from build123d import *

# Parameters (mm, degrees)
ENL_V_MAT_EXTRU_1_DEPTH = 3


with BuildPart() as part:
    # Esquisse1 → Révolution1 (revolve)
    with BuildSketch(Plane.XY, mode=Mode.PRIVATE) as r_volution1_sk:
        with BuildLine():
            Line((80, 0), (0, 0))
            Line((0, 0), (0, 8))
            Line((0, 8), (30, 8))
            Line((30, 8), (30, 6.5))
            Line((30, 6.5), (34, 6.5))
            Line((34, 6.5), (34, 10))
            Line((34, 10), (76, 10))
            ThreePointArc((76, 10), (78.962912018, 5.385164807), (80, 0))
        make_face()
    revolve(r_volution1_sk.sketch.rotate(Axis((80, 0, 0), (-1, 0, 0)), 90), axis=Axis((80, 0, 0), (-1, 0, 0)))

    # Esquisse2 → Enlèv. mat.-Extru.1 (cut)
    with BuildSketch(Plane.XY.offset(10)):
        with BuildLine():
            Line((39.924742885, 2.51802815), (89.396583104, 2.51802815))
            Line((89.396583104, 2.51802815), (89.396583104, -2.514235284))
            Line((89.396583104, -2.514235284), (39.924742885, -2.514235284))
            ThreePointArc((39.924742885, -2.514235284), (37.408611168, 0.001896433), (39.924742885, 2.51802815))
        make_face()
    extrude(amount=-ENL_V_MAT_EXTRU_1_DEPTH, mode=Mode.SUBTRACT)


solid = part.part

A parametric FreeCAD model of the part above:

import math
import FreeCAD as App
import Part
import Sketcher
Q = App.Units.Quantity

doc = App.newDocument("Part")
body = doc.addObject("PartDesign::Body", "Body")

# Sketch on XY plane
sketch1 = doc.addObject("Sketcher::SketchObject", "Sketch")
body.addObject(sketch1)
sketch1.AttachmentSupport = (doc.XY_Plane, [""])
sketch1.MapMode = "FlatFace"
sketch1.addGeometry([
    Part.LineSegment(App.Vector(0, 0, 0), App.Vector(80, 0, 0)),  # 0
    Part.ArcOfCircle(Part.Circle(App.Vector(65.5, 0, 0), App.Vector(0, 0, 1), 14.5), math.radians(0), math.radians(44)),  # 1
    Part.LineSegment(App.Vector(76, 10, 0), App.Vector(34, 10, 0)),  # 2
    Part.LineSegment(App.Vector(34, 10, 0), App.Vector(34, 6.5, 0)),  # 3
    Part.LineSegment(App.Vector(34, 6.5, 0), App.Vector(30, 6.5, 0)),  # 4
    Part.LineSegment(App.Vector(30, 6.5, 0), App.Vector(30, 8, 0)),  # 5
    Part.LineSegment(App.Vector(30, 8, 0), App.Vector(0, 8, 0)),  # 6
    Part.LineSegment(App.Vector(0, 8, 0), App.Vector(0, 0, 0)),  # 7
], False)
sketch1.addConstraint([
    Sketcher.Constraint("Coincident", 0, 2, 1, 1),
    Sketcher.Constraint("Coincident", 1, 2, 2, 1),
    Sketcher.Constraint("Coincident", 2, 2, 3, 1),
    Sketcher.Constraint("Coincident", 3, 2, 4, 1),
    Sketcher.Constraint("Coincident", 4, 2, 5, 1),
    Sketcher.Constraint("Coincident", 5, 2, 6, 1),
    Sketcher.Constraint("Coincident", 6, 2, 7, 1),
    Sketcher.Constraint("Coincident", 7, 2, 0, 1),
    Sketcher.Constraint("Horizontal", 0),
    Sketcher.Constraint("Horizontal", 2),
    Sketcher.Constraint("Vertical", 3),
    Sketcher.Constraint("Horizontal", 4),
    Sketcher.Constraint("Vertical", 5),
    Sketcher.Constraint("Horizontal", 6),
    Sketcher.Constraint("Vertical", 7),
    Sketcher.Constraint("Coincident", 7, 2, -1, 1),
    Sketcher.Constraint("PointOnObject", 1, 3, -1),
    Sketcher.Constraint("Radius", 1, Q("14.5 mm")),
    Sketcher.Constraint("DistanceX", 0, 1, 0, 2, Q("80 mm")),
    Sketcher.Constraint("DistanceX", 2, 2, 2, 1, Q("42 mm")),
    Sketcher.Constraint("DistanceX", 4, 2, 4, 1, Q("4 mm")),
    Sketcher.Constraint("DistanceX", 6, 2, 6, 1, Q("30 mm")),
    Sketcher.Constraint("DistanceY", 7, 2, 7, 1, Q("8 mm")),
    Sketcher.Constraint("DistanceY", 3, 2, 3, 1, Q("3.5 mm")),
])
revolution = doc.addObject("PartDesign::Revolution", "Revolution")
body.addObject(revolution)
revolution.Profile = sketch1
revolution.ReferenceAxis = (sketch1, ["H_Axis"])
revolution.Angle = 360

# Sketch on XY plane
sketch2 = doc.addObject("Sketcher::SketchObject", "Sketch001")
body.addObject(sketch2)
sketch2.AttachmentSupport = (doc.XY_Plane, [""])
sketch2.MapMode = "FlatFace"
sketch2.AttachmentOffset = App.Placement(App.Vector(0, 0, 10), App.Rotation())
sketch2.addGeometry([
    Part.LineSegment(App.Vector(89.4, 2.5, 0), App.Vector(39.9, 2.5, 0)),
    Part.ArcOfCircle(Part.Circle(App.Vector(39.9, 0, 0), App.Vector(0, 0, 1), 2.5), math.radians(90), math.radians(270)),
    Part.LineSegment(App.Vector(39.9, -2.5, 0), App.Vector(89.4, -2.5, 0)),
    Part.LineSegment(App.Vector(89.4, -2.5, 0), App.Vector(89.4, 2.5, 0)),
], False)
sketch2.addConstraint([
    Sketcher.Constraint("Tangent", 0, 2, 1, 1),
    Sketcher.Constraint("Tangent", 1, 2, 2, 1),
    Sketcher.Constraint("Coincident", 2, 2, 3, 1),
    Sketcher.Constraint("Coincident", 3, 2, 0, 1),
    Sketcher.Constraint("Horizontal", 0),
    Sketcher.Constraint("Horizontal", 2),
    Sketcher.Constraint("Vertical", 3),
    Sketcher.Constraint("Radius", 1, Q("2.516132 mm")),
    Sketcher.Constraint("DistanceX", 0, 2, 0, 1, Q("49.47184 mm")),
    Sketcher.Constraint("DistanceY", -1, 1, 0, 2, Q("2.518028 mm")),
    Sketcher.Constraint("DistanceX", -1, 1, 1, 3, Q("39.924743 mm")),
])
pocket1 = doc.addObject("PartDesign::Pocket", "Pocket")
body.addObject(pocket1)
pocket1.Profile = sketch2
pocket1.Length = 3

doc.recompute()
